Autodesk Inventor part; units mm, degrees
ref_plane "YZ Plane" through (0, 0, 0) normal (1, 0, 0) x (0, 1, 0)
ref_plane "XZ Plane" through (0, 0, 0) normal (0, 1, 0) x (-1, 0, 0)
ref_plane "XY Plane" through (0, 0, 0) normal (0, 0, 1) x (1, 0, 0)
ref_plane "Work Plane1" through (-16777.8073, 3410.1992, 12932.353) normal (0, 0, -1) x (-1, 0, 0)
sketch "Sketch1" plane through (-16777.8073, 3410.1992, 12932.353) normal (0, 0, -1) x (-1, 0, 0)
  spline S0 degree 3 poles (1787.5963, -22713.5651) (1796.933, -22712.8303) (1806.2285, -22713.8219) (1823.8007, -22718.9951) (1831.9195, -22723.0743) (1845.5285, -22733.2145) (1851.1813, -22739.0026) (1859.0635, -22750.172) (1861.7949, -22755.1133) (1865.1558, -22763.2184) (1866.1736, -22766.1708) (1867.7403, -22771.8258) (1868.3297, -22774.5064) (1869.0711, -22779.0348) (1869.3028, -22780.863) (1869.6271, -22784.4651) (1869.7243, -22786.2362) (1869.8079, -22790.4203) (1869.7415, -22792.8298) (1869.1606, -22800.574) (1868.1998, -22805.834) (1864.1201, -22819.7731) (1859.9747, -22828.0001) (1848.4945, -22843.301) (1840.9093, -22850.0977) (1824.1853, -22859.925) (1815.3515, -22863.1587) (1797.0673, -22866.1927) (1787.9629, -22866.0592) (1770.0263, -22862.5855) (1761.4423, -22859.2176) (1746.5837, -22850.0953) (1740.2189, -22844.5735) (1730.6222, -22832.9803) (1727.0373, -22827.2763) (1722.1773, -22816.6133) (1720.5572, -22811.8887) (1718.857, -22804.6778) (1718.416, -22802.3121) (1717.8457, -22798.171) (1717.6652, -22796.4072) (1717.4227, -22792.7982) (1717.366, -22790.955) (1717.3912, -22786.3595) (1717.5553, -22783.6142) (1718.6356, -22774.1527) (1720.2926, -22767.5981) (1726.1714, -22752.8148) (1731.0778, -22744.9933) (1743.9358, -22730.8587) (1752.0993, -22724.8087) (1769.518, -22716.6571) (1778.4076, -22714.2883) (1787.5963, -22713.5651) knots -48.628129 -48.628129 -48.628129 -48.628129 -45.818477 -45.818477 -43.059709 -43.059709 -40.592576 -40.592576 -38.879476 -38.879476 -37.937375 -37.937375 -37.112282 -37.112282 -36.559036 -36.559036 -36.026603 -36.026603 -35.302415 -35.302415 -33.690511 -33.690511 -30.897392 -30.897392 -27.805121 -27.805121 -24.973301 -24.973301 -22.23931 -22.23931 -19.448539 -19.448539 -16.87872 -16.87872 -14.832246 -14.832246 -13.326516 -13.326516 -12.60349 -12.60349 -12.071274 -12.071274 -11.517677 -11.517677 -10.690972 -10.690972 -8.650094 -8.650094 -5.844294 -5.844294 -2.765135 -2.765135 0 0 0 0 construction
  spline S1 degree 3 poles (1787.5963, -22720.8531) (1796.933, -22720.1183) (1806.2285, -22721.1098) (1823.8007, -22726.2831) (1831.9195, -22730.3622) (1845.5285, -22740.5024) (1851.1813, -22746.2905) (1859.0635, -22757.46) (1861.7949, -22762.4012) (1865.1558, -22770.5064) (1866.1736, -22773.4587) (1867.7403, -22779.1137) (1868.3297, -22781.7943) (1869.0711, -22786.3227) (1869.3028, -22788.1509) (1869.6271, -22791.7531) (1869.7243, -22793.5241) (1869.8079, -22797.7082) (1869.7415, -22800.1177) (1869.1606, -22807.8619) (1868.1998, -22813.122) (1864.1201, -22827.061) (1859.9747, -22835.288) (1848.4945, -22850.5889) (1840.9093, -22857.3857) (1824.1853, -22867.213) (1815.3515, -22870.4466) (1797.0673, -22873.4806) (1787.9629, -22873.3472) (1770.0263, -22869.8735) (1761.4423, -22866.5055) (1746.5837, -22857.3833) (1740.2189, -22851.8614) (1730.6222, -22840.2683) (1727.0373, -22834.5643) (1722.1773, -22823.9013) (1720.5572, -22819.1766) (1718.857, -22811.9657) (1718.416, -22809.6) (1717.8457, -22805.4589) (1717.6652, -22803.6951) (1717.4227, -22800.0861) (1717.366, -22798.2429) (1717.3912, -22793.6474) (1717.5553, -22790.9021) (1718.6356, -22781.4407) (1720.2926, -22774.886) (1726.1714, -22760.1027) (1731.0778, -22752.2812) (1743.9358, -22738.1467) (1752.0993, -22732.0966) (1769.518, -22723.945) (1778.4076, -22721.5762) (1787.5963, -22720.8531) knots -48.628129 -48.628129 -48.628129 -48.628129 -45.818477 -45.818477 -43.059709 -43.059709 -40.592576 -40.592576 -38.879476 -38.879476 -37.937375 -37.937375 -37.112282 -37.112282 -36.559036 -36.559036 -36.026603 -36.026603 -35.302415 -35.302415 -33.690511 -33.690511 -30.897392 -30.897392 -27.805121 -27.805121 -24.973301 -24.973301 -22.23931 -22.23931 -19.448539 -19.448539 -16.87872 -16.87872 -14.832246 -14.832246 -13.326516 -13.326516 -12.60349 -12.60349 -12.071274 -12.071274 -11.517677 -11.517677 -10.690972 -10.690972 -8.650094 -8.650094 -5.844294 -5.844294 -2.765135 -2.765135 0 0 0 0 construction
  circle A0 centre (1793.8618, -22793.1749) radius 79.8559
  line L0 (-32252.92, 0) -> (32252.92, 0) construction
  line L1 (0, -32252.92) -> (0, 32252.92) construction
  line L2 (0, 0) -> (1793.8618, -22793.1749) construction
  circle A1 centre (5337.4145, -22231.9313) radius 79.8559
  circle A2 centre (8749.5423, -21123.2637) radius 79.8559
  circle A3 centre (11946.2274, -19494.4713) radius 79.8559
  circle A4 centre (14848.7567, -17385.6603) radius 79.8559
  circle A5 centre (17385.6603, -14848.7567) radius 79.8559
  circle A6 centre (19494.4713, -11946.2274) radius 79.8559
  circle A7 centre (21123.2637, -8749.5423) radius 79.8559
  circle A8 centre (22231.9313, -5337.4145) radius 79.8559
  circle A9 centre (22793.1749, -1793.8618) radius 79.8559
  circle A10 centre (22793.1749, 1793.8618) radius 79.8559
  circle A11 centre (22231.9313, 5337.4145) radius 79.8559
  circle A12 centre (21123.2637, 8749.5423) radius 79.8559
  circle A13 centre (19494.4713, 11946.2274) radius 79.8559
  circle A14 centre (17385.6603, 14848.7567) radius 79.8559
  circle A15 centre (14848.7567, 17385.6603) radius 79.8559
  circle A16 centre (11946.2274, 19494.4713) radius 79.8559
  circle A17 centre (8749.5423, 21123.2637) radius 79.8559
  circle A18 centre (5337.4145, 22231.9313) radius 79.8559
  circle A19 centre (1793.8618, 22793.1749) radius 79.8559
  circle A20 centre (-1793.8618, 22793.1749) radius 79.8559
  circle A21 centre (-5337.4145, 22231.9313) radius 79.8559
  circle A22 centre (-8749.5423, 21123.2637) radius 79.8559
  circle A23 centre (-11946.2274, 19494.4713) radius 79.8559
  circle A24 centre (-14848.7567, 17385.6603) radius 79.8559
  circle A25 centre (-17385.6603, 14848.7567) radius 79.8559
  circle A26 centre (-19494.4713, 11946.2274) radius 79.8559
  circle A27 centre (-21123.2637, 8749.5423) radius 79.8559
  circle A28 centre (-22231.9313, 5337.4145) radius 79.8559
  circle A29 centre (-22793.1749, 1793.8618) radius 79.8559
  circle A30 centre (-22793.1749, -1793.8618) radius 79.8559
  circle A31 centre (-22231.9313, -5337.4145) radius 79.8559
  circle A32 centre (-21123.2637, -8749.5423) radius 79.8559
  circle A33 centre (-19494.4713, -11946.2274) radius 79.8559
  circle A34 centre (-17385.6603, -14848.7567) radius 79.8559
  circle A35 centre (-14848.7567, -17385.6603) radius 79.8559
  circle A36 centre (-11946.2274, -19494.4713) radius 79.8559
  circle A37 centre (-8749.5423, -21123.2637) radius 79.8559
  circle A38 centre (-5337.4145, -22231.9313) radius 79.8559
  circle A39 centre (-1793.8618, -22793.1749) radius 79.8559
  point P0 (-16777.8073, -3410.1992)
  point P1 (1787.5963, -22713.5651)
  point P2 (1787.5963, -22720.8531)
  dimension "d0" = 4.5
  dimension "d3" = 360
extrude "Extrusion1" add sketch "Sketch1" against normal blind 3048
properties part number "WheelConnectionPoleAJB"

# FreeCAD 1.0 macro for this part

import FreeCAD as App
import Part
import Sketcher
from FreeCAD import Vector
Q = App.Units.Quantity

doc = App.newDocument("Part")
body = doc.addObject("PartDesign::Body", "Body")
body.AllowCompound = True

# Sketch on XY plane
sketch1 = body.newObject("Sketcher::SketchObject", "Sketch")
sketch1.AttachmentSupport = (doc.getObject("XY_Plane"), [""])
sketch1.MapMode = "FlatFace"
sketch1.AttachmentOffset = App.Placement(Vector(0, 0, 12932.353), App.Rotation())
sketch1.addGeometry(Part.Circle(Vector(-18572, -19383, 0), Vector(0, 0, 1), 80), False)
sketch1.addGeometry(Part.Circle(Vector(-22115, -18822, 0), Vector(0, 0, 1), 80), False)
sketch1.addGeometry(Part.Circle(Vector(-25527, -17713, 0), Vector(0, 0, 1), 80), False)
sketch1.addGeometry(Part.Circle(Vector(-28724, -16084, 0), Vector(0, 0, 1), 80), False)
sketch1.addGeometry(Part.Circle(Vector(-31627, -13975, 0), Vector(0, 0, 1), 80), False)
sketch1.addGeometry(Part.Circle(Vector(-34163, -11439, 0), Vector(0, 0, 1), 80), False)
sketch1.addGeometry(Part.Circle(Vector(-36272, -8536, 0), Vector(0, 0, 1), 80), False)
sketch1.addGeometry(Part.Circle(Vector(-37901, -5339, 0), Vector(0, 0, 1), 80), False)
sketch1.addGeometry(Part.Circle(Vector(-39010, -1927, 0), Vector(0, 0, 1), 80), False)
sketch1.addGeometry(Part.Circle(Vector(-39571, 1616, 0), Vector(0, 0, 1), 80), False)
sketch1.addGeometry(Part.Circle(Vector(-39571, 5204, 0), Vector(0, 0, 1), 80), False)
sketch1.addGeometry(Part.Circle(Vector(-39010, 8748, 0), Vector(0, 0, 1), 80), False)
sketch1.addGeometry(Part.Circle(Vector(-37901, 12160, 0), Vector(0, 0, 1), 80), False)
sketch1.addGeometry(Part.Circle(Vector(-36272, 15356, 0), Vector(0, 0, 1), 80), False)
sketch1.addGeometry(Part.Circle(Vector(-34163, 18259, 0), Vector(0, 0, 1), 80), False)
sketch1.addGeometry(Part.Circle(Vector(-31627, 20796, 0), Vector(0, 0, 1), 80), False)
sketch1.addGeometry(Part.Circle(Vector(-28724, 22905, 0), Vector(0, 0, 1), 80), False)
sketch1.addGeometry(Part.Circle(Vector(-25527, 24533, 0), Vector(0, 0, 1), 80), False)
sketch1.addGeometry(Part.Circle(Vector(-22115, 25642, 0), Vector(0, 0, 1), 80), False)
sketch1.addGeometry(Part.Circle(Vector(-18572, 26203, 0), Vector(0, 0, 1), 80), False)
sketch1.addGeometry(Part.Circle(Vector(-14984, 26203, 0), Vector(0, 0, 1), 80), False)
sketch1.addGeometry(Part.Circle(Vector(-11440, 25642, 0), Vector(0, 0, 1), 80), False)
sketch1.addGeometry(Part.Circle(Vector(-8028, 24533, 0), Vector(0, 0, 1), 80), False)
sketch1.addGeometry(Part.Circle(Vector(-4832, 22905, 0), Vector(0, 0, 1), 80), False)
sketch1.addGeometry(Part.Circle(Vector(-1929, 20796, 0), Vector(0, 0, 1), 80), False)
sketch1.addGeometry(Part.Circle(Vector(608, 18259, 0), Vector(0, 0, 1), 80), False)
sketch1.addGeometry(Part.Circle(Vector(2717, 15356, 0), Vector(0, 0, 1), 80), False)
sketch1.addGeometry(Part.Circle(Vector(4345, 12160, 0), Vector(0, 0, 1), 80), False)
sketch1.addGeometry(Part.Circle(Vector(5454, 8748, 0), Vector(0, 0, 1), 80), False)
sketch1.addGeometry(Part.Circle(Vector(6015, 5204, 0), Vector(0, 0, 1), 80), False)
sketch1.addGeometry(Part.Circle(Vector(6015, 1616, 0), Vector(0, 0, 1), 80), False)
sketch1.addGeometry(Part.Circle(Vector(5454, -1927, 0), Vector(0, 0, 1), 80), False)
sketch1.addGeometry(Part.Circle(Vector(4345, -5339, 0), Vector(0, 0, 1), 80), False)
sketch1.addGeometry(Part.Circle(Vector(2717, -8536, 0), Vector(0, 0, 1), 80), False)
sketch1.addGeometry(Part.Circle(Vector(608, -11439, 0), Vector(0, 0, 1), 80), False)
sketch1.addGeometry(Part.Circle(Vector(-1929, -13975, 0), Vector(0, 0, 1), 80), False)
sketch1.addGeometry(Part.Circle(Vector(-4832, -16084, 0), Vector(0, 0, 1), 80), False)
sketch1.addGeometry(Part.Circle(Vector(-8028, -17713, 0), Vector(0, 0, 1), 80), False)
sketch1.addGeometry(Part.Circle(Vector(-11440, -18822, 0), Vector(0, 0, 1), 80), False)
sketch1.addGeometry(Part.Circle(Vector(-14984, -19383, 0), Vector(0, 0, 1), 80), False)
sketch1.addConstraint(Sketcher.Constraint("Equal", 0, 1))
sketch1.addConstraint(Sketcher.Constraint("Equal", 1, 2))
sketch1.addConstraint(Sketcher.Constraint("Equal", 2, 3))
sketch1.addConstraint(Sketcher.Constraint("Equal", 3, 4))
sketch1.addConstraint(Sketcher.Constraint("Equal", 4, 5))
sketch1.addConstraint(Sketcher.Constraint("Equal", 5, 6))
sketch1.addConstraint(Sketcher.Constraint("Equal", 6, 7))
sketch1.addConstraint(Sketcher.Constraint("Equal", 7, 8))
sketch1.addConstraint(Sketcher.Constraint("Equal", 8, 9))
sketch1.addConstraint(Sketcher.Constraint("Equal", 9, 10))
sketch1.addConstraint(Sketcher.Constraint("Equal", 10, 11))
sketch1.addConstraint(Sketcher.Constraint("Equal", 11, 12))
sketch1.addConstraint(Sketcher.Constraint("Equal", 12, 13))
sketch1.addConstraint(Sketcher.Constraint("Equal", 13, 14))
sketch1.addConstraint(Sketcher.Constraint("Equal", 14, 15))
sketch1.addConstraint(Sketcher.Constraint("Equal", 15, 16))
sketch1.addConstraint(Sketcher.Constraint("Equal", 16, 17))
sketch1.addConstraint(Sketcher.Constraint("Equal", 17, 18))
sketch1.addConstraint(Sketcher.Constraint("Equal", 18, 19))
sketch1.addConstraint(Sketcher.Constraint("Equal", 19, 20))
sketch1.addConstraint(Sketcher.Constraint("Equal", 20, 21))
sketch1.addConstraint(Sketcher.Constraint("Equal", 21, 22))
sketch1.addConstraint(Sketcher.Constraint("Equal", 22, 23))
sketch1.addConstraint(Sketcher.Constraint("Equal", 23, 24))
sketch1.addConstraint(Sketcher.Constraint("Equal", 24, 25))
sketch1.addConstraint(Sketcher.Constraint("Equal", 25, 26))
sketch1.addConstraint(Sketcher.Constraint("Equal", 26, 27))
sketch1.addConstraint(Sketcher.Constraint("Equal", 27, 28))
sketch1.addConstraint(Sketcher.Constraint("Equal", 28, 29))
sketch1.addConstraint(Sketcher.Constraint("Equal", 29, 30))
sketch1.addConstraint(Sketcher.Constraint("Equal", 30, 31))
sketch1.addConstraint(Sketcher.Constraint("Equal", 31, 32))
sketch1.addConstraint(Sketcher.Constraint("Equal", 32, 33))
sketch1.addConstraint(Sketcher.Constraint("Equal", 33, 34))
sketch1.addConstraint(Sketcher.Constraint("Equal", 34, 35))
sketch1.addConstraint(Sketcher.Constraint("Equal", 35, 36))
sketch1.addConstraint(Sketcher.Constraint("Equal", 36, 37))
sketch1.addConstraint(Sketcher.Constraint("Equal", 37, 38))
sketch1.addConstraint(Sketcher.Constraint("Equal", 38, 39))
sketch1.addConstraint(Sketcher.Constraint("Horizontal", 19, 3, 20, 3))
sketch1.addConstraint(Sketcher.Constraint("Horizontal", 18, 3, 21, 3))
sketch1.addConstraint(Sketcher.Constraint("Horizontal", 17, 3, 22, 3))
sketch1.addConstraint(Sketcher.Constraint("Horizontal", 16, 3, 23, 3))
sketch1.addConstraint(Sketcher.Constraint("Horizontal", 15, 3, 24, 3))
sketch1.addConstraint(Sketcher.Constraint("Horizontal", 14, 3, 25, 3))
sketch1.addConstraint(Sketcher.Constraint("Horizontal", 13, 3, 26, 3))
sketch1.addConstraint(Sketcher.Constraint("Horizontal", 12, 3, 27, 3))
sketch1.addConstraint(Sketcher.Constraint("Horizontal", 11, 3, 28, 3))
sketch1.addConstraint(Sketcher.Constraint("Horizontal", 10, 3, 29, 3))
sketch1.addConstraint(Sketcher.Constraint("Horizontal", 9, 3, 30, 3))
sketch1.addConstraint(Sketcher.Constraint("Horizontal", 8, 3, 31, 3))
sketch1.addConstraint(Sketcher.Constraint("Horizontal", 7, 3, 32, 3))
sketch1.addConstraint(Sketcher.Constraint("Horizontal", 6, 3, 33, 3))
sketch1.addConstraint(Sketcher.Constraint("Horizontal", 5, 3, 34, 3))
sketch1.addConstraint(Sketcher.Constraint("Horizontal", 4, 3, 35, 3))
sketch1.addConstraint(Sketcher.Constraint("Horizontal", 3, 3, 36, 3))
sketch1.addConstraint(Sketcher.Constraint("Horizontal", 2, 3, 37, 3))
sketch1.addConstraint(Sketcher.Constraint("Horizontal", 1, 3, 38, 3))
sketch1.addConstraint(Sketcher.Constraint("Horizontal", 0, 3, 39, 3))
sketch1.addConstraint(Sketcher.Constraint("Vertical", 9, 3, 10, 3))
sketch1.addConstraint(Sketcher.Constraint("Vertical", 8, 3, 11, 3))
sketch1.addConstraint(Sketcher.Constraint("Vertical", 7, 3, 12, 3))
sketch1.addConstraint(Sketcher.Constraint("Vertical", 6, 3, 13, 3))
sketch1.addConstraint(Sketcher.Constraint("Vertical", 5, 3, 14, 3))
sketch1.addConstraint(Sketcher.Constraint("Vertical", 4, 3, 15, 3))
sketch1.addConstraint(Sketcher.Constraint("Vertical", 3, 3, 16, 3))
sketch1.addConstraint(Sketcher.Constraint("Vertical", 2, 3, 17, 3))
sketch1.addConstraint(Sketcher.Constraint("Vertical", 1, 3, 18, 3))
sketch1.addConstraint(Sketcher.Constraint("Vertical", 0, 3, 19, 3))
sketch1.addConstraint(Sketcher.Constraint("Vertical", 29, 3, 30, 3))
sketch1.addConstraint(Sketcher.Constraint("Vertical", 28, 3, 31, 3))
sketch1.addConstraint(Sketcher.Constraint("Vertical", 27, 3, 32, 3))
sketch1.addConstraint(Sketcher.Constraint("Vertical", 26, 3, 33, 3))
sketch1.addConstraint(Sketcher.Constraint("Vertical", 25, 3, 34, 3))
sketch1.addConstraint(Sketcher.Constraint("Vertical", 24, 3, 35, 3))
sketch1.addConstraint(Sketcher.Constraint("Vertical", 23, 3, 36, 3))
sketch1.addConstraint(Sketcher.Constraint("Vertical", 22, 3, 37, 3))
sketch1.addConstraint(Sketcher.Constraint("Vertical", 21, 3, 38, 3))
sketch1.addConstraint(Sketcher.Constraint("Vertical", 20, 3, 39, 3))
sketch1.addConstraint(Sketcher.Constraint("Diameter", 0, 159.7118))
sketch1.addConstraint(Sketcher.Constraint("DistanceY", 4, 3, -1, 1, Q("550.215 in")))
sketch1.addConstraint(Sketcher.Constraint("DistanceX", 3, 3, -1, 1, Q("1130.8675 in")))
sketch1.addConstraint(Sketcher.Constraint("DistanceX", 5, 3, -1, 1, Q("1345.0184 in")))
sketch1.addConstraint(Sketcher.Constraint("DistanceY", 5, 3, -1, 1, Q("450.3369 in")))
sketch1.addConstraint(Sketcher.Constraint("DistanceY", 6, 3, -1, 1, Q("336.0641 in")))
sketch1.addConstraint(Sketcher.Constraint("DistanceY", -1, 1, 10, 3, Q("204.8843 in")))
sketch1.addConstraint(Sketcher.Constraint("DistanceY", -1, 1, 18, 3, Q("1009.5327 in")))
sketch1.addConstraint(Sketcher.Constraint("DistanceY", -1, 1, 19, 3, Q("1031.6289 in")))
sketch1.addConstraint(Sketcher.Constraint("DistanceX", -1, 1, 28, 3, Q("214.7293 in")))
sketch1.addConstraint(Sketcher.Constraint("DistanceX", -1, 1, 29, 3, Q("236.8255 in")))
sketch1.addConstraint(Sketcher.Constraint("DistanceY", 0, 3, 1, 3, Q("22.0962 in")))
sketch1.addConstraint(Sketcher.Constraint("DistanceX", 2, 3, 0, 3, Q("273.8457 in")))
sketch1.addConstraint(Sketcher.Constraint("DistanceX", 4, 3, 3, 3, Q("114.2728 in")))
sketch1.addConstraint(Sketcher.Constraint("DistanceX", 4, 3, 1, 3, Q("374.4623 in")))
sketch1.addConstraint(Sketcher.Constraint("DistanceX", 6, 3, 2, 3, Q("423.0287 in")))
sketch1.addConstraint(Sketcher.Constraint("DistanceY", 3, 3, 7, 3, Q("423.0287 in")))
sketch1.addConstraint(Sketcher.Constraint("DistanceY", 5, 3, 8, 3, Q("374.4623 in")))
sketch1.addConstraint(Sketcher.Constraint("DistanceX", 9, 3, 8, 3, Q("22.0962 in")))
sketch1.addConstraint(Sketcher.Constraint("DistanceY", 7, 3, 9, 3, Q("273.8457 in")))
sketch1.addConstraint(Sketcher.Constraint("DistanceY", 9, 3, 11, 3, Q("280.7589 in")))
sketch1.addConstraint(Sketcher.Constraint("DistanceY", 10, 3, 12, 3, Q("273.8457 in")))
sketch1.addConstraint(Sketcher.Constraint("DistanceY", 9, 3, 13, 3, Q("540.9484 in")))
sketch1.addConstraint(Sketcher.Constraint("DistanceY", 13, 3, 14, 3, Q("114.2728 in")))
sketch1.addConstraint(Sketcher.Constraint("DistanceY", 14, 3, 15, 3, Q("99.8781 in")))
sketch1.addConstraint(Sketcher.Constraint("DistanceY", 12, 3, 16, 3, Q("423.0287 in")))
sketch1.addConstraint(Sketcher.Constraint("DistanceX", 18, 3, 20, 3, Q("280.7589 in")))
sketch1.addConstraint(Sketcher.Constraint("DistanceX", 19, 3, 21, 3, Q("280.7589 in")))
sketch1.addConstraint(Sketcher.Constraint("DistanceX", 20, 3, 22, 3, Q("273.8457 in")))
sketch1.addConstraint(Sketcher.Constraint("DistanceX", 19, 3, 23, 3, Q("540.9484 in")))
sketch1.addConstraint(Sketcher.Constraint("DistanceX", 23, 3, 24, 3, Q("114.2728 in")))
sketch1.addConstraint(Sketcher.Constraint("DistanceX", 24, 3, 25, 3, Q("99.8781 in")))
sketch1.addConstraint(Sketcher.Constraint("DistanceX", 22, 3, 26, 3, Q("423.0287 in")))
sketch1.addConstraint(Sketcher.Constraint("DistanceX", 0, 3, -1, 1, 18571.669))
sketch1.addConstraint(Sketcher.Constraint("DistanceY", 0, 3, -1, 1, 19382.9757))
sketch1.addConstraint(Sketcher.Constraint("DistanceY", 2, 3, -1, 1, 17713.0645))
sketch1.addConstraint(Sketcher.Constraint("DistanceY", 3, 3, -1, 1, 16084.272))
sketch1.addConstraint(Sketcher.Constraint("DistanceX", 7, 3, -1, 1, 37901.071))
sketch1.addConstraint(Sketcher.Constraint("DistanceX", 8, 3, -1, 1, 39009.7386))
sketch1.addConstraint(Sketcher.Constraint("DistanceY", -1, 1, 17, 3, 24533.463))
sketch1.addConstraint(Sketcher.Constraint("DistanceX", -1, 1, 27, 3, 4345.4564))
pad1 = body.newObject("PartDesign::Pad", "Pad")
pad1.Profile = sketch1
pad1.Length = Q("120 in")

doc.recompute()
